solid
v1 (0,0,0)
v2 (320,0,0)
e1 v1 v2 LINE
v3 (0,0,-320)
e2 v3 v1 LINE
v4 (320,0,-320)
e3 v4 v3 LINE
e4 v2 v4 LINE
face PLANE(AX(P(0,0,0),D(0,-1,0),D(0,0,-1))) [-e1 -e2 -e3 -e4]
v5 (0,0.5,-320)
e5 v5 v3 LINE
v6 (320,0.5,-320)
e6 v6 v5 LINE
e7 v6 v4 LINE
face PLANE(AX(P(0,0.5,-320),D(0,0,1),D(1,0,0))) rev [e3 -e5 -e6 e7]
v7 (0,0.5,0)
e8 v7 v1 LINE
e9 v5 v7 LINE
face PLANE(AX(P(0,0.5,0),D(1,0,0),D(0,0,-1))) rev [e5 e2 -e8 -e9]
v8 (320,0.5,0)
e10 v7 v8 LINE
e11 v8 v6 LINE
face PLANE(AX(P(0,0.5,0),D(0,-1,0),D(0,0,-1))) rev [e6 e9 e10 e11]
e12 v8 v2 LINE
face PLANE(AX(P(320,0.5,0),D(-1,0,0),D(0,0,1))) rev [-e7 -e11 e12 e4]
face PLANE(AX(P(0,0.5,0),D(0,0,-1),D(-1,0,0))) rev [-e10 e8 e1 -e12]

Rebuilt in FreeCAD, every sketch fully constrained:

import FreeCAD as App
import Part
import Sketcher

doc = App.newDocument("Part")
body = doc.addObject("PartDesign::Body", "Body")

# Sketch on XZ plane
sketch1 = body.newObject("Sketcher::SketchObject", "Sketch")
sketch1.AttachmentSupport = (doc.getObject("XZ_Plane"), [""])
sketch1.MapMode = "FlatFace"
sketch1.addGeometry([
    Part.LineSegment(App.Vector(0, -320, 0), App.Vector(0, 0, 0)),
    Part.LineSegment(App.Vector(0, 0, 0), App.Vector(320, 0, 0)),
    Part.LineSegment(App.Vector(320, 0, 0), App.Vector(320, -320, 0)),
    Part.LineSegment(App.Vector(320, -320, 0), App.Vector(0, -320, 0)),
], False)
sketch1.addConstraint([
    Sketcher.Constraint("Coincident", 0, 2, 1, 1),
    Sketcher.Constraint("Coincident", 1, 2, 2, 1),
    Sketcher.Constraint("Coincident", 2, 2, 3, 1),
    Sketcher.Constraint("Coincident", 3, 2, 0, 1),
    Sketcher.Constraint("Vertical", 0),
    Sketcher.Constraint("Horizontal", 1),
    Sketcher.Constraint("Vertical", 2),
    Sketcher.Constraint("Horizontal", 3),
    Sketcher.Constraint("Coincident", 0, 2, -1, 1),
    Sketcher.Constraint("Equal", 3, 0),
    Sketcher.Constraint("DistanceX", 1, 1, 1, 2, 320.0),
])
pad1 = body.newObject("PartDesign::Pad", "Pad")
pad1.Profile = sketch1
pad1.Length = 0.5
pad1.Reversed = True

doc.recompute()
